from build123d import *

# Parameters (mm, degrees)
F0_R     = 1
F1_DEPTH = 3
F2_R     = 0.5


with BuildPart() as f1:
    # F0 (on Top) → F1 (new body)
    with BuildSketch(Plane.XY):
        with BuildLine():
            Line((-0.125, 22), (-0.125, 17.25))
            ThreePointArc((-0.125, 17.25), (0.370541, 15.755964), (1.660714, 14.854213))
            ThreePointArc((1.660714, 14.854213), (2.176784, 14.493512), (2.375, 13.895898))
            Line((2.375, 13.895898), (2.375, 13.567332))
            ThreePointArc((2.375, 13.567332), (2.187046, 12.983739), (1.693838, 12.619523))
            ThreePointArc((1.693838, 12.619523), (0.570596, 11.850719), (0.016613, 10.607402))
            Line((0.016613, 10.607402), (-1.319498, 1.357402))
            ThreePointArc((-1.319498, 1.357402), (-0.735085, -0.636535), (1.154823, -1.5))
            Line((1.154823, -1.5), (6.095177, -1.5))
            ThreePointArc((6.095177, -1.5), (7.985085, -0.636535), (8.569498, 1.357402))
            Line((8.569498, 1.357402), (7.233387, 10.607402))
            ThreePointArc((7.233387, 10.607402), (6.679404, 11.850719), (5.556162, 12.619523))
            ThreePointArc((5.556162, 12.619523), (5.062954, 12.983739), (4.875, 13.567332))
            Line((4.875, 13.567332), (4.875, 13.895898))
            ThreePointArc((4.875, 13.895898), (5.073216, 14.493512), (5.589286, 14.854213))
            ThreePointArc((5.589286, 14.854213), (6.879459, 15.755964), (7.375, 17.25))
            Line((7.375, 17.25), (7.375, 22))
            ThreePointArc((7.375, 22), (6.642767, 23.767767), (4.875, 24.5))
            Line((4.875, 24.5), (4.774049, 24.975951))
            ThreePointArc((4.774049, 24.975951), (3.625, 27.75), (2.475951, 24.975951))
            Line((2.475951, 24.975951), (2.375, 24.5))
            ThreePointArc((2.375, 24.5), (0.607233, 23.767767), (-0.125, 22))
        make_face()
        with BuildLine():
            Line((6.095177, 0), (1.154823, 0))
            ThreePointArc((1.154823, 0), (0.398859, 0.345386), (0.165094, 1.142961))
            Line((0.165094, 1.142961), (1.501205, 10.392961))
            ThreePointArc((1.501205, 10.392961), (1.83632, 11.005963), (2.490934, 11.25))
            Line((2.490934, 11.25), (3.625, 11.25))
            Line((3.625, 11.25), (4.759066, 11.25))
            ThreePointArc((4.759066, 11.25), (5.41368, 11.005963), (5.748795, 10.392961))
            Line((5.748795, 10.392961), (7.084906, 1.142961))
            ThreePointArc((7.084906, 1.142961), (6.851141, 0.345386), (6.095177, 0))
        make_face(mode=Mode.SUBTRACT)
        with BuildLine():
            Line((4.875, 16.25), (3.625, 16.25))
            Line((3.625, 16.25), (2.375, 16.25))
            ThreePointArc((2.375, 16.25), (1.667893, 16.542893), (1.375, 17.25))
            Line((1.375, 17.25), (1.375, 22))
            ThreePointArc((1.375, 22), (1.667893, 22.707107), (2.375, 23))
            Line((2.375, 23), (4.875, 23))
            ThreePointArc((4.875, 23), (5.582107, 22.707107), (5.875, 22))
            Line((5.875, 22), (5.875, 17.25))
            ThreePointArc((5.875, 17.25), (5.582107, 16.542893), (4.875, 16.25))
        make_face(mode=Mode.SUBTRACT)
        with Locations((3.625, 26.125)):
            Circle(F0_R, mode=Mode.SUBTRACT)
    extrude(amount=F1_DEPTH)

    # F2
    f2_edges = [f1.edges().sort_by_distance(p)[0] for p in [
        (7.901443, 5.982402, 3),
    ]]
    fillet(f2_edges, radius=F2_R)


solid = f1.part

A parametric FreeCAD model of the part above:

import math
import FreeCAD as App
import Part
import Sketcher
Q = App.Units.Quantity


def edges_at(feature, points):
    """Names of the edges that pass closest to the given points."""
    edges = feature.Shape.Edges
    near = lambda p: min(range(len(edges)), key=lambda i: edges[i].distToShape(Part.Vertex(*p))[0])
    return sorted({f"Edge{near(p) + 1}" for p in points})

doc = App.newDocument("Part")
params = doc.addObject("Spreadsheet::Sheet", "Params")
for row, (alias, value) in enumerate([
    ("sketch1_diameter", "2 mm"),
    ("sketch1_radius", "2.5 mm"),
    ("sketch1_width", "2.5 mm"),
    ("sketch1_height", "4.75 mm"),
    ("pad1_length", "3 mm"),
    ("fillet_radius", "0.5 mm"),
], start=1):
    params.set(f"A{row}", alias)
    params.set(f"B{row}", "=" + value)
    params.setAlias(f"B{row}", alias)

body = doc.addObject("PartDesign::Body", "Body")

# Sketch on XY plane
sketch1 = doc.addObject("Sketcher::SketchObject", "Sketch")
body.addObject(sketch1)
sketch1.AttachmentSupport = (doc.XY_Plane, [""])
sketch1.MapMode = "FlatFace"
sketch1.addGeometry(Part.LineSegment(App.Vector(-0.125, 22, 0), App.Vector(-0.125, 17.25, 0)), False)
sketch1.addGeometry(Part.ArcOfCircle(Part.Circle(App.Vector(2.375, 17.25, 0), App.Vector(0, 0, 1), 2.5), math.radians(-179.999993), math.radians(-106.601563)), False)
sketch1.addGeometry(Part.ArcOfCircle(Part.Circle(App.Vector(1.375, 13.895898, 0), App.Vector(0, 0, 1), 1), math.radians(-0.000003), math.radians(73.398467)), False)
sketch1.addGeometry(Part.LineSegment(App.Vector(2.375, 13.895898, 0), App.Vector(2.375, 13.567332, 0)), False)
sketch1.addGeometry(Part.ArcOfCircle(Part.Circle(App.Vector(1.374999, 13.567333, 0), App.Vector(0, 0, 1), 1.000001), math.radians(-71.407312), math.radians(-0.000034)), False)
sketch1.addGeometry(Part.ArcOfCircle(Part.Circle(App.Vector(2.490936, 10.249999, 0), App.Vector(0, 0, 1), 2.500002), math.radians(108.592717), math.radians(171.780766)), False)
sketch1.addGeometry(Part.LineSegment(App.Vector(0.016613, 10.607402, 0), App.Vector(-1.319498, 1.357402, 0)), False)
sketch1.addGeometry(Part.ArcOfCircle(Part.Circle(App.Vector(1.154823, 1.000001, 0), App.Vector(0, 0, 1), 2.500001), math.radians(171.780803), math.radians(269.999989)), False)
sketch1.addGeometry(Part.LineSegment(App.Vector(1.154823, -1.5, 0), App.Vector(6.095177, -1.5, 0)), False)
sketch1.addGeometry(Part.ArcOfCircle(Part.Circle(App.Vector(6.095177, 1.000001, 0), App.Vector(0, 0, 1), 2.500001), math.radians(-89.999989), math.radians(8.219197)), False)
sketch1.addGeometry(Part.LineSegment(App.Vector(8.569498, 1.357402, 0), App.Vector(7.233387, 10.607402, 0)), False)
sketch1.addGeometry(Part.ArcOfCircle(Part.Circle(App.Vector(4.759064, 10.249999, 0), App.Vector(0, 0, 1), 2.500002), math.radians(8.219234), math.radians(71.407283)), False)
sketch1.addGeometry(Part.ArcOfCircle(Part.Circle(App.Vector(5.875001, 13.567333, 0), App.Vector(0, 0, 1), 1.000001), math.radians(-179.999966), math.radians(-108.592688)), False)
sketch1.addGeometry(Part.LineSegment(App.Vector(4.875, 13.567332, 0), App.Vector(4.875, 13.895898, 0)), False)
sketch1.addGeometry(Part.ArcOfCircle(Part.Circle(App.Vector(5.875, 13.895898, 0), App.Vector(0, 0, 1), 1), math.radians(106.601533), math.radians(180.000003)), False)
sketch1.addGeometry(Part.ArcOfCircle(Part.Circle(App.Vector(4.875, 17.25, 0), App.Vector(0, 0, 1), 2.5), math.radians(-73.398437), math.radians(-0.000007)), False)
sketch1.addGeometry(Part.LineSegment(App.Vector(7.375, 17.25, 0), App.Vector(7.375, 22, 0)), False)
sketch1.addGeometry(Part.ArcOfCircle(Part.Circle(App.Vector(4.875, 22, 0), App.Vector(0, 0, 1), 2.5), math.radians(-0.000004), math.radians(90.000004)), False)
sketch1.addGeometry(Part.LineSegment(App.Vector(4.875, 24.5, 0), App.Vector(4.774049, 24.975951, 0)), False)
sketch1.addGeometry(Part.ArcOfCircle(Part.Circle(App.Vector(3.625, 26.125, 0), App.Vector(0, 0, 1), 1.625), math.radians(-44.99999), math.radians(224.99999)), False)
sketch1.addGeometry(Part.LineSegment(App.Vector(2.475951, 24.975951, 0), App.Vector(2.375, 24.5, 0)), False)
sketch1.addGeometry(Part.ArcOfCircle(Part.Circle(App.Vector(2.375, 22, 0), App.Vector(0, 0, 1), 2.5), math.radians(89.999996), math.radians(180.000004)), False)
sketch1.addGeometry(Part.ArcOfCircle(Part.Circle(App.Vector(6.095178, 1, 0), App.Vector(0, 0, 1), 1), math.radians(-90.000041), math.radians(8.219225)), False)
sketch1.addGeometry(Part.LineSegment(App.Vector(6.095177, 0, 0), App.Vector(1.154823, 0, 0)), False)
sketch1.addGeometry(Part.ArcOfCircle(Part.Circle(App.Vector(1.154822, 1, 0), App.Vector(0, 0, 1), 1), math.radians(171.780775), math.radians(270.000041)), False)
sketch1.addGeometry(Part.LineSegment(App.Vector(0.165094, 1.142961, 0), App.Vector(1.501205, 10.392961, 0)), False)
sketch1.addGeometry(Part.ArcOfCircle(Part.Circle(App.Vector(2.490935, 10.249998, 0), App.Vector(0, 0, 1), 1.000002), math.radians(90.000064), math.radians(171.780674)), False)
sketch1.addGeometry(Part.LineSegment(App.Vector(2.490934, 11.25, 0), App.Vector(4.759066, 11.25, 0)), False)
sketch1.addGeometry(Part.ArcOfCircle(Part.Circle(App.Vector(4.759065, 10.249998, 0), App.Vector(0, 0, 1), 1.000002), math.radians(8.219326), math.radians(89.999936)), False)
sketch1.addGeometry(Part.LineSegment(App.Vector(5.748795, 10.392961, 0), App.Vector(7.084906, 1.142961, 0)), False)
sketch1.addGeometry(Part.ArcOfCircle(Part.Circle(App.Vector(4.875001, 17.249999, 0), App.Vector(0, 0, 1), 0.999999), math.radians(-90.000043), math.radians(0.000043)), False)
sketch1.addGeometry(Part.LineSegment(App.Vector(4.875, 16.25, 0), App.Vector(2.375, 16.25, 0)), False)
sketch1.addGeometry(Part.ArcOfCircle(Part.Circle(App.Vector(2.374999, 17.249999, 0), App.Vector(0, 0, 1), 0.999999), math.radians(179.999957), math.radians(270.000043)), False)
sketch1.addGeometry(Part.LineSegment(App.Vector(1.375, 17.25, 0), App.Vector(1.375, 22, 0)), False)
sketch1.addGeometry(Part.ArcOfCircle(Part.Circle(App.Vector(2.374999, 22.000001, 0), App.Vector(0, 0, 1), 0.999999), math.radians(89.999957), math.radians(180.000043)), False)
sketch1.addGeometry(Part.LineSegment(App.Vector(2.375, 23, 0), App.Vector(4.875, 23, 0)), False)
sketch1.addGeometry(Part.ArcOfCircle(Part.Circle(App.Vector(4.875001, 22.000001, 0), App.Vector(0, 0, 1), 0.999999), math.radians(-0.000043), math.radians(90.000043)), False)
sketch1.addGeometry(Part.LineSegment(App.Vector(5.875, 22, 0), App.Vector(5.875, 17.25, 0)), False)
sketch1.addGeometry(Part.Circle(App.Vector(3.625, 26.125, 0), App.Vector(0, 0, 1), 1), False)
sketch1.addConstraint(Sketcher.Constraint("Tangent", 0, 2, 1, 1))
sketch1.addConstraint(Sketcher.Constraint("Tangent", 1, 2, 2, 2))
sketch1.addConstraint(Sketcher.Constraint("Tangent", 2, 1, 3, 1))
sketch1.addConstraint(Sketcher.Constraint("Tangent", 3, 2, 4, 2))
sketch1.addConstraint(Sketcher.Constraint("Tangent", 4, 1, 5, 1))
sketch1.addConstraint(Sketcher.Constraint("Tangent", 5, 2, 6, 1))
sketch1.addConstraint(Sketcher.Constraint("Tangent", 6, 2, 7, 1))
sketch1.addConstraint(Sketcher.Constraint("Tangent", 7, 2, 8, 1))
sketch1.addConstraint(Sketcher.Constraint("Tangent", 8, 2, 9, 1))
sketch1.addConstraint(Sketcher.Constraint("Tangent", 9, 2, 10, 1))
sketch1.addConstraint(Sketcher.Constraint("Tangent", 10, 2, 11, 1))
sketch1.addConstraint(Sketcher.Constraint("Tangent", 11, 2, 12, 2))
sketch1.addConstraint(Sketcher.Constraint("Tangent", 12, 1, 13, 1))
sketch1.addConstraint(Sketcher.Constraint("Tangent", 13, 2, 14, 2))
sketch1.addConstraint(Sketcher.Constraint("Tangent", 14, 1, 15, 1))
sketch1.addConstraint(Sketcher.Constraint("Tangent", 15, 2, 16, 1))
sketch1.addConstraint(Sketcher.Constraint("Tangent", 16, 2, 17, 1))
sketch1.addConstraint(Sketcher.Constraint("Coincident", 17, 2, 18, 1))
sketch1.addConstraint(Sketcher.Constraint("Coincident", 18, 2, 19, 1))
sketch1.addConstraint(Sketcher.Constraint("Coincident", 19, 2, 20, 1))
sketch1.addConstraint(Sketcher.Constraint("Coincident", 20, 2, 21, 1))
sketch1.addConstraint(Sketcher.Constraint("Tangent", 21, 2, 0, 1))
sketch1.addConstraint(Sketcher.Constraint("Tangent", 22, 1, 23, 1))
sketch1.addConstraint(Sketcher.Constraint("Tangent", 23, 2, 24, 2))
sketch1.addConstraint(Sketcher.Constraint("Tangent", 24, 1, 25, 1))
sketch1.addConstraint(Sketcher.Constraint("Coincident", 25, 2, 26, 2))
sketch1.addConstraint(Sketcher.Constraint("Tangent", 26, 1, 27, 1))
sketch1.addConstraint(Sketcher.Constraint("Tangent", 27, 2, 28, 2))
sketch1.addConstraint(Sketcher.Constraint("Coincident", 28, 1, 29, 1))
sketch1.addConstraint(Sketcher.Constraint("Tangent", 29, 2, 22, 2))
sketch1.addConstraint(Sketcher.Constraint("Tangent", 30, 1, 31, 1))
sketch1.addConstraint(Sketcher.Constraint("Tangent", 31, 2, 32, 2))
sketch1.addConstraint(Sketcher.Constraint("Tangent", 32, 1, 33, 1))
sketch1.addConstraint(Sketcher.Constraint("Tangent", 33, 2, 34, 2))
sketch1.addConstraint(Sketcher.Constraint("Tangent", 34, 1, 35, 1))
sketch1.addConstraint(Sketcher.Constraint("Tangent", 35, 2, 36, 2))
sketch1.addConstraint(Sketcher.Constraint("Tangent", 36, 1, 37, 1))
sketch1.addConstraint(Sketcher.Constraint("Tangent", 37, 2, 30, 2))
sketch1.addConstraint(Sketcher.Constraint("Vertical", 0))
sketch1.addConstraint(Sketcher.Constraint("Vertical", 3))
sketch1.addConstraint(Sketcher.Constraint("Horizontal", 8))
sketch1.addConstraint(Sketcher.Constraint("Vertical", 13))
sketch1.addConstraint(Sketcher.Constraint("Vertical", 16))
sketch1.addConstraint(Sketcher.Constraint("Horizontal", 23))
sketch1.addConstraint(Sketcher.Constraint("Horizontal", 27))
sketch1.addConstraint(Sketcher.Constraint("Horizontal", 31))
sketch1.addConstraint(Sketcher.Constraint("Vertical", 33))
sketch1.addConstraint(Sketcher.Constraint("Horizontal", 35))
sketch1.addConstraint(Sketcher.Constraint("Vertical", 37))
sketch1.addConstraint(Sketcher.Constraint("Coincident", 22, 3, 9, 3))
sketch1.addConstraint(Sketcher.Constraint("Coincident", 24, 3, 7, 3))
sketch1.addConstraint(Sketcher.Constraint("Coincident", 26, 3, 5, 3))
sketch1.addConstraint(Sketcher.Constraint("Coincident", 28, 3, 11, 3))
sketch1.addConstraint(Sketcher.Constraint("Coincident", 30, 3, 15, 3))
sketch1.addConstraint(Sketcher.Constraint("Coincident", 32, 3, 1, 3))
sketch1.addConstraint(Sketcher.Constraint("Coincident", 34, 3, 21, 3))
sketch1.addConstraint(Sketcher.Constraint("Coincident", 36, 3, 17, 3))
sketch1.addConstraint(Sketcher.Constraint("Coincident", 38, 3, 19, 3))
sketch1.addConstraint(Sketcher.Constraint("Equal", 2, 4))
sketch1.addConstraint(Sketcher.Constraint("Equal", 1, 5))
sketch1.addConstraint(Sketcher.Constraint("Equal", 5, 7))
sketch1.addConstraint(Sketcher.Constraint("Equal", 7, 9))
sketch1.addConstraint(Sketcher.Constraint("Equal", 9, 11))
sketch1.addConstraint(Sketcher.Constraint("Equal", 4, 12))
sketch1.addConstraint(Sketcher.Constraint("Equal", 12, 14))
sketch1.addConstraint(Sketcher.Constraint("Equal", 11, 15))
sketch1.addConstraint(Sketcher.Constraint("Equal", 15, 17))
sketch1.addConstraint(Sketcher.Constraint("Equal", 17, 21))
sketch1.addConstraint(Sketcher.Constraint("Equal", 14, 22))
sketch1.addConstraint(Sketcher.Constraint("Equal", 12, 26))
sketch1.addConstraint(Sketcher.Constraint("Equal", 26, 28))
sketch1.addConstraint(Sketcher.Constraint("Equal", 24, 30))
sketch1.addConstraint(Sketcher.Constraint("Equal", 30, 32))
sketch1.addConstraint(Sketcher.Constraint("Equal", 36, 38))
sketch1.addConstraint(Sketcher.Constraint("PointOnObject", 22, 1, -1))
sketch1.addConstraint(Sketcher.Constraint("Horizontal", 4, 3, 12, 3))
sketch1.addConstraint(Sketcher.Constraint("Horizontal", 2, 3, 14, 3))
sketch1.addConstraint(Sketcher.Constraint("Horizontal", 6, 2, 9, 2))
sketch1.addConstraint(Sketcher.Constraint("Horizontal", 18, 2, 19, 2))
sketch1.addConstraint(Sketcher.Constraint("Horizontal", 25, 2, 28, 1))
sketch1.addConstraint(Sketcher.Constraint("Vertical", 34, 3, 2, 1))
sketch1.addConstraint(Sketcher.Constraint("Vertical", 13, 2, 17, 2))
sketch1.addConstraint(Sketcher.Constraint("Vertical", 3, 2, 20, 2))
sketch1.addConstraint(Sketcher.Constraint("Equal", 18, 20))
sketch1.addConstraint(Sketcher.Constraint("Equal", 10, 25))
sketch1.addConstraint(Sketcher.Constraint("Diameter", 38, Q("2 mm")))
sketch1.addConstraint(Sketcher.Constraint("Radius", 1, Q("2.5 mm")))
sketch1.addConstraint(Sketcher.Constraint("DistanceX", 31, 2, 31, 1, Q("2.5 mm")))
sketch1.addConstraint(Sketcher.Constraint("DistanceY", -1, 1, 17, 3, Q("22 mm")))
sketch1.addConstraint(Sketcher.Constraint("Radius", 19, Q("1.625 mm")))
sketch1.addConstraint(Sketcher.Constraint("DistanceY", 5, 3, 1, 3, Q("7.000002 mm")))
sketch1.addConstraint(Sketcher.Constraint("DistanceY", 0, 2, 0, 1, Q("4.75 mm")))
sketch1.addConstraint(Sketcher.Constraint("Distance", 6, Q("9.345999 mm")))
sketch1.addConstraint(Sketcher.Constraint("DistanceX", -1, 1, 1, 3, Q("2.375 mm")))
sketch1.addConstraint(Sketcher.Constraint("DistanceY", -1, 1, 19, 3, Q("26.125 mm")))
sketch1.addConstraint(Sketcher.Constraint("DistanceX", 27, 1, 27, 2, Q("2.268132 mm")))
sketch1.addConstraint(Sketcher.Constraint("Distance", 18, Q("0.486539 mm")))
sketch1.setExpression("Constraints[85]", "Params.sketch1_diameter")
sketch1.setExpression("Constraints[86]", "Params.sketch1_radius")
sketch1.setExpression("Constraints[87]", "Params.sketch1_width")
sketch1.setExpression("Constraints[91]", "Params.sketch1_height")
pad1 = doc.addObject("PartDesign::Pad", "Pad")
body.addObject(pad1)
pad1.Profile = sketch1
pad1.setExpression("Length", "Params.pad1_length")
doc.recompute()

fillet = doc.addObject("PartDesign::Fillet", "Fillet")
body.addObject(fillet)
fillet.Base = (pad1, edges_at(pad1, [(7.901, 5.982, 3)]))
fillet.setExpression("Radius", "Params.fillet_radius")

doc.recompute()
